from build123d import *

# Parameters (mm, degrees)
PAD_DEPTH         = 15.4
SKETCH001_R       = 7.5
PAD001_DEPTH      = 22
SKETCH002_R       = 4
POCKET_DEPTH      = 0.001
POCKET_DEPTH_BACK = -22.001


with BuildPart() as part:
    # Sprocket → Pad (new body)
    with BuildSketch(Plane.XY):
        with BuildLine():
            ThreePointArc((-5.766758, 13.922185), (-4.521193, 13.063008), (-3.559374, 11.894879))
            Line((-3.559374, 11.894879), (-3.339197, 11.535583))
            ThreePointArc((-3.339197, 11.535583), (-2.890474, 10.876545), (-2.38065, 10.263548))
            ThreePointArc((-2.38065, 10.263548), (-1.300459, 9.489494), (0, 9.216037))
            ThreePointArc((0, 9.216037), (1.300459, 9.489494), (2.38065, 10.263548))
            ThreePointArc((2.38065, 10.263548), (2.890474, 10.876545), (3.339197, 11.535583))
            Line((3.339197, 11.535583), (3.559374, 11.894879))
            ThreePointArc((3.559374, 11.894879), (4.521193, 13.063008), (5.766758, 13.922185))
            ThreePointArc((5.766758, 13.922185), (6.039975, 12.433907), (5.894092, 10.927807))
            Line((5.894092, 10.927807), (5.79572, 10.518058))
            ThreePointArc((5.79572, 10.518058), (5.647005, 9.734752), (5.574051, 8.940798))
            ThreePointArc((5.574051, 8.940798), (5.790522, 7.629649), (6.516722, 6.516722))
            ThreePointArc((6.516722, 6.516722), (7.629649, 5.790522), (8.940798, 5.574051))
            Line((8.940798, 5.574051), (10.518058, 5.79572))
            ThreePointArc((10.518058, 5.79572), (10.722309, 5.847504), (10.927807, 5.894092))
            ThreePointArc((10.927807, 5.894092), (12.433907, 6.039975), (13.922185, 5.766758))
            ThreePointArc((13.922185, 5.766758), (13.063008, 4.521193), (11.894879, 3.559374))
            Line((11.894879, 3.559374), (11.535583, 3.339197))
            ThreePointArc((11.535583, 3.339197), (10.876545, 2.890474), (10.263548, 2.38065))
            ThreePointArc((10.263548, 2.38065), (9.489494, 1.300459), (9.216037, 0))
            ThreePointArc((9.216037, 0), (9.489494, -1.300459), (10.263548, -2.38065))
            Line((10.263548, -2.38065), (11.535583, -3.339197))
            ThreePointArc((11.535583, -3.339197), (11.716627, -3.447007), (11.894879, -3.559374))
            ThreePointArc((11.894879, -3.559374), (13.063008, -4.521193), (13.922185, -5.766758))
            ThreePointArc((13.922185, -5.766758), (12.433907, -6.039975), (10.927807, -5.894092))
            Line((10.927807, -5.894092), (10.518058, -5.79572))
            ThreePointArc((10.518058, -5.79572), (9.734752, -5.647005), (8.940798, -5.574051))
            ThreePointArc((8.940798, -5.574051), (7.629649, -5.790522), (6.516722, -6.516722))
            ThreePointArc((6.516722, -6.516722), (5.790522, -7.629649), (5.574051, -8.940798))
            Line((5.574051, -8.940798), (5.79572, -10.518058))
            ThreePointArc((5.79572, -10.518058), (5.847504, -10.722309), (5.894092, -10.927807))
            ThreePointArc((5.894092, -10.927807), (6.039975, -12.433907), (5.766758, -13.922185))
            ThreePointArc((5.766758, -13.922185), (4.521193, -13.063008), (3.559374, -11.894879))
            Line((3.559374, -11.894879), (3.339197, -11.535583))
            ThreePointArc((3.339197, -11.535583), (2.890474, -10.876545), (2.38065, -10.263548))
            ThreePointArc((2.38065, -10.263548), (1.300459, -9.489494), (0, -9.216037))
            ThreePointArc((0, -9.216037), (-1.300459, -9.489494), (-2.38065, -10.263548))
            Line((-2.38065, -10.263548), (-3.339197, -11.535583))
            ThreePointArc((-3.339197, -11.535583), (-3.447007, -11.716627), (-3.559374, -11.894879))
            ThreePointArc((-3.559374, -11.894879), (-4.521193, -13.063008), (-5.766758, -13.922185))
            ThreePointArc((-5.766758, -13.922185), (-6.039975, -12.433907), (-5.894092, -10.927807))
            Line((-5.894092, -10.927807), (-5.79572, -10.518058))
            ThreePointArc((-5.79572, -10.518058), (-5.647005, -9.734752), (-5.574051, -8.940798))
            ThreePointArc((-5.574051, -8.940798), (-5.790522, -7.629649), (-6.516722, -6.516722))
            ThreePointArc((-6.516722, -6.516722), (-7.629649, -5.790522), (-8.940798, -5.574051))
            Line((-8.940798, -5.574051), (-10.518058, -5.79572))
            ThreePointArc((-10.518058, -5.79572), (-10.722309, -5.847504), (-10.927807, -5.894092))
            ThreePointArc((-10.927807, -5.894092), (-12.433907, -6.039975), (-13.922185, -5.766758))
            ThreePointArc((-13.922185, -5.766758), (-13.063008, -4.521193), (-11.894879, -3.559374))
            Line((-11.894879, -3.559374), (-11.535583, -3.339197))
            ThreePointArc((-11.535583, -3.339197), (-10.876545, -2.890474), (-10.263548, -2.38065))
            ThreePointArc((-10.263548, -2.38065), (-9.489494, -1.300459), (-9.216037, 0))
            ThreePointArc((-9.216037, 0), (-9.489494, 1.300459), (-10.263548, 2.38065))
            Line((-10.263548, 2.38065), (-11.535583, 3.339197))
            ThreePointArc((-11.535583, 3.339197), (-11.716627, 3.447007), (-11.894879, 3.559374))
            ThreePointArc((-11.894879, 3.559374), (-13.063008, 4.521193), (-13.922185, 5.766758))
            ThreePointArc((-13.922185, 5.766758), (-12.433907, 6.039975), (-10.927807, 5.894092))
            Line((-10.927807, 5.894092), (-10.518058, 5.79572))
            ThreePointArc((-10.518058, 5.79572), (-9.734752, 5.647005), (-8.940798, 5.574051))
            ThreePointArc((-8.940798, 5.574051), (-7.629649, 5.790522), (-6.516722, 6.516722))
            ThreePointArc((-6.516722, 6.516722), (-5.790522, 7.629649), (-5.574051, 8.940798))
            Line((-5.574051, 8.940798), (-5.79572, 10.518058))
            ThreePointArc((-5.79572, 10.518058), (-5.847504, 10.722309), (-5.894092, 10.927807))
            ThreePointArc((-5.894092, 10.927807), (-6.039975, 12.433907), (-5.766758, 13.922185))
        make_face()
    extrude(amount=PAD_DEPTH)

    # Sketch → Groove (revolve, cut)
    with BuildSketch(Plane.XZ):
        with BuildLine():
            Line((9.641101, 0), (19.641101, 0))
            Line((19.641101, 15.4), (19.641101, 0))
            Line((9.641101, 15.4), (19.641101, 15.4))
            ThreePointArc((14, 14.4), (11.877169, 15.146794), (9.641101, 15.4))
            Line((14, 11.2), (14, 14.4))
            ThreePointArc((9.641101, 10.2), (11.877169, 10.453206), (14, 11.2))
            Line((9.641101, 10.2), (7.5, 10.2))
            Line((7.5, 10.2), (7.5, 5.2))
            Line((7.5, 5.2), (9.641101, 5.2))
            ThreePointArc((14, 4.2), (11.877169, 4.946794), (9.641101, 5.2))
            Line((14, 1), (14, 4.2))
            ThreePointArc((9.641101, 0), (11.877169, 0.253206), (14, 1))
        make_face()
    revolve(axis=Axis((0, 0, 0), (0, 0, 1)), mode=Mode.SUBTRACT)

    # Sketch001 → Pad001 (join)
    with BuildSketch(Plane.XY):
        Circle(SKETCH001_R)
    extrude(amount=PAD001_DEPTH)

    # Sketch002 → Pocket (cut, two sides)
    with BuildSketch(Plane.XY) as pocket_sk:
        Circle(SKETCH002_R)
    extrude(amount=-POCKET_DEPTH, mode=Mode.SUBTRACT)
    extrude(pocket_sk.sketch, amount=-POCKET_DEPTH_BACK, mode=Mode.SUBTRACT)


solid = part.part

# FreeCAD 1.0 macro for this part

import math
import FreeCAD as App
import Part
import Sketcher
Q = App.Units.Quantity

doc = App.newDocument("Part")
body = doc.addObject("PartDesign::Body", "Body")

sketch1 = body.newObject("Sketcher::SketchObject", "Sketch")
sketch1.AttachmentSupport = (doc.getObject("XY_Plane"), [""])
sketch1.MapMode = "FlatFace"
sketch1.addGeometry([
    Part.ArcOfCircle(Part.Circle(App.Vector(-8.213287, 9.042958, 0), App.Vector(0, 0, 1), 5.458237), math.radians(31.499993), math.radians(63.37002)),
    Part.ArcOfCircle(Part.Circle(App.Vector(-0.586656, 12.202008, 0), App.Vector(0, 0, 1), 5.458248), math.radians(161.630018), math.radians(193.499983)),
    Part.ArcOfCircle(Part.Circle(App.Vector(2.232006, 12.662027, 0), App.Vector(0, 0, 1), 8.309091), math.radians(-167.953026), math.radians(-165.046983)),
    Part.LineSegment(App.Vector(-5.79572, 10.518058, 0), App.Vector(-5.574051, 8.940798, 0)),
    Part.ArcOfCircle(Part.Circle(App.Vector(-8.79995, 8.79995, 0), App.Vector(0, 0, 1), 3.228972), math.radians(-45.000007), math.radians(2.500031)),
    Part.ArcOfCircle(Part.Circle(App.Vector(-8.79995, 8.79995, 0), App.Vector(0, 0, 1), 3.228972), math.radians(-92.500031), math.radians(-44.999993)),
    Part.ArcOfCircle(Part.Circle(App.Vector(-8.578365, 13.875139, 0), App.Vector(0, 0, 1), 8.308996), math.radians(-103.499973), math.radians(-92.499996)),
    Part.LineSegment(App.Vector(-10.518058, 5.79572, 0), App.Vector(-10.927807, 5.894092, 0)),
    Part.ArcOfCircle(Part.Circle(App.Vector(-12.202008, 0.586656, 0), App.Vector(0, 0, 1), 5.458248), math.radians(76.500017), math.radians(108.369982)),
    Part.ArcOfCircle(Part.Circle(App.Vector(-9.042958, 8.213287, 0), App.Vector(0, 0, 1), 5.458237), math.radians(-153.37002), math.radians(-121.499993)),
    Part.ArcOfCircle(Part.Circle(App.Vector(-7.375746, 10.530677, 0), App.Vector(0, 0, 1), 8.307925), math.radians(-122.953241), math.radians(-120.046788)),
    Part.LineSegment(App.Vector(-11.535583, 3.339197, 0), App.Vector(-10.263548, 2.38065, 0)),
    Part.ArcOfCircle(Part.Circle(App.Vector(-12.445011, 0.000001, 0), App.Vector(0, 0, 1), 3.228974), math.radians(-0.000009), math.radians(47.500006)),
    Part.ArcOfCircle(Part.Circle(App.Vector(-12.445011, -0.000001, 0), App.Vector(0, 0, 1), 3.228974), math.radians(-47.500006), math.radians(0.000009)),
    Part.ArcOfCircle(Part.Circle(App.Vector(-15.877022, 3.745386, 0), App.Vector(0, 0, 1), 8.308995), math.radians(-58.499991), math.radians(-47.500016)),
    Part.LineSegment(App.Vector(-11.535583, -3.339197, 0), App.Vector(-11.894879, -3.559374, 0)),
    Part.ArcOfCircle(Part.Circle(App.Vector(-9.042958, -8.213287, 0), App.Vector(0, 0, 1), 5.458237), math.radians(121.499993), math.radians(153.37002)),
    Part.ArcOfCircle(Part.Circle(App.Vector(-12.202008, -0.586656, 0), App.Vector(0, 0, 1), 5.458248), math.radians(-108.369982), math.radians(-76.500017)),
    Part.ArcOfCircle(Part.Circle(App.Vector(-12.662027, 2.232006, 0), App.Vector(0, 0, 1), 8.309091), math.radians(-77.953026), math.radians(-75.046983)),
    Part.LineSegment(App.Vector(-10.518058, -5.79572, 0), App.Vector(-8.940798, -5.574051, 0)),
    Part.ArcOfCircle(Part.Circle(App.Vector(-8.79995, -8.79995, 0), App.Vector(0, 0, 1), 3.228972), math.radians(44.999993), math.radians(92.500031)),
    Part.ArcOfCircle(Part.Circle(App.Vector(-8.79995, -8.79995, 0), App.Vector(0, 0, 1), 3.228972), math.radians(-2.500031), math.radians(45.000007)),
    Part.ArcOfCircle(Part.Circle(App.Vector(-13.875139, -8.578365, 0), App.Vector(0, 0, 1), 8.308996), math.radians(-13.499973), math.radians(-2.499996)),
    Part.LineSegment(App.Vector(-5.79572, -10.518058, 0), App.Vector(-5.894092, -10.927807, 0)),
    Part.ArcOfCircle(Part.Circle(App.Vector(-0.586656, -12.202008, 0), App.Vector(0, 0, 1), 5.458248), math.radians(166.500017), math.radians(198.369982)),
    Part.ArcOfCircle(Part.Circle(App.Vector(-8.213287, -9.042958, 0), App.Vector(0, 0, 1), 5.458237), math.radians(-63.37002), math.radians(-31.499993)),
    Part.ArcOfCircle(Part.Circle(App.Vector(-10.530677, -7.375746, 0), App.Vector(0, 0, 1), 8.307925), math.radians(-32.953241), math.radians(-30.046788)),
    Part.LineSegment(App.Vector(-3.339197, -11.535583, 0), App.Vector(-2.38065, -10.263548, 0)),
    Part.ArcOfCircle(Part.Circle(App.Vector(-0.000001, -12.445011, 0), App.Vector(0, 0, 1), 3.228974), math.radians(89.999991), math.radians(137.500006)),
    Part.ArcOfCircle(Part.Circle(App.Vector(0.000001, -12.445011, 0), App.Vector(0, 0, 1), 3.228974), math.radians(42.499994), math.radians(90.000009)),
    Part.ArcOfCircle(Part.Circle(App.Vector(-3.745386, -15.877022, 0), App.Vector(0, 0, 1), 8.308995), math.radians(31.500009), math.radians(42.499984)),
    Part.LineSegment(App.Vector(3.339197, -11.535583, 0), App.Vector(3.559374, -11.894879, 0)),
    Part.ArcOfCircle(Part.Circle(App.Vector(8.213287, -9.042958, 0), App.Vector(0, 0, 1), 5.458237), math.radians(-148.500007), math.radians(-116.62998)),
    Part.ArcOfCircle(Part.Circle(App.Vector(0.586656, -12.202008, 0), App.Vector(0, 0, 1), 5.458248), math.radians(-18.369982), math.radians(13.499983)),
    Part.ArcOfCircle(Part.Circle(App.Vector(-2.232006, -12.662027, 0), App.Vector(0, 0, 1), 8.309091), math.radians(12.046974), math.radians(14.953017)),
    Part.LineSegment(App.Vector(5.79572, -10.518058, 0), App.Vector(5.574051, -8.940798, 0)),
    Part.ArcOfCircle(Part.Circle(App.Vector(8.79995, -8.79995, 0), App.Vector(0, 0, 1), 3.228972), math.radians(134.999993), math.radians(182.500031)),
    Part.ArcOfCircle(Part.Circle(App.Vector(8.79995, -8.79995, 0), App.Vector(0, 0, 1), 3.228972), math.radians(87.499969), math.radians(135.000007)),
    Part.ArcOfCircle(Part.Circle(App.Vector(8.578365, -13.875139, 0), App.Vector(0, 0, 1), 8.308996), math.radians(76.500027), math.radians(87.500004)),
    Part.LineSegment(App.Vector(10.518058, -5.79572, 0), App.Vector(10.927807, -5.894092, 0)),
    Part.ArcOfCircle(Part.Circle(App.Vector(12.202008, -0.586656, 0), App.Vector(0, 0, 1), 5.458248), math.radians(-103.499983), math.radians(-71.630018)),
    Part.ArcOfCircle(Part.Circle(App.Vector(9.042958, -8.213287, 0), App.Vector(0, 0, 1), 5.458237), math.radians(26.62998), math.radians(58.500007)),
    Part.ArcOfCircle(Part.Circle(App.Vector(7.375746, -10.530677, 0), App.Vector(0, 0, 1), 8.307925), math.radians(57.046759), math.radians(59.953212)),
    Part.LineSegment(App.Vector(11.535583, -3.339197, 0), App.Vector(10.263548, -2.38065, 0)),
    Part.ArcOfCircle(Part.Circle(App.Vector(12.445011, -0.000001, 0), App.Vector(0, 0, 1), 3.228974), math.radians(179.999991), math.radians(227.500006)),
    Part.ArcOfCircle(Part.Circle(App.Vector(12.445011, 0.000001, 0), App.Vector(0, 0, 1), 3.228974), math.radians(132.499994), math.radians(180.000009)),
    Part.ArcOfCircle(Part.Circle(App.Vector(15.877022, -3.745386, 0), App.Vector(0, 0, 1), 8.308995), math.radians(121.500009), math.radians(132.499984)),
    Part.LineSegment(App.Vector(11.535583, 3.339197, 0), App.Vector(11.894879, 3.559374, 0)),
    Part.ArcOfCircle(Part.Circle(App.Vector(9.042958, 8.213287, 0), App.Vector(0, 0, 1), 5.458237), math.radians(-58.500007), math.radians(-26.62998)),
    Part.ArcOfCircle(Part.Circle(App.Vector(12.202008, 0.586656, 0), App.Vector(0, 0, 1), 5.458248), math.radians(71.630018), math.radians(103.499983)),
    Part.ArcOfCircle(Part.Circle(App.Vector(12.662027, -2.232006, 0), App.Vector(0, 0, 1), 8.309091), math.radians(102.046974), math.radians(104.953017)),
    Part.LineSegment(App.Vector(10.518058, 5.79572, 0), App.Vector(8.940798, 5.574051, 0)),
    Part.ArcOfCircle(Part.Circle(App.Vector(8.79995, 8.79995, 0), App.Vector(0, 0, 1), 3.228972), math.radians(-135.000007), math.radians(-87.499969)),
    Part.ArcOfCircle(Part.Circle(App.Vector(8.79995, 8.79995, 0), App.Vector(0, 0, 1), 3.228972), math.radians(177.499969), math.radians(225.000007)),
    Part.ArcOfCircle(Part.Circle(App.Vector(13.875139, 8.578365, 0), App.Vector(0, 0, 1), 8.308996), math.radians(166.500027), math.radians(177.500004)),
    Part.LineSegment(App.Vector(5.79572, 10.518058, 0), App.Vector(5.894092, 10.927807, 0)),
    Part.ArcOfCircle(Part.Circle(App.Vector(0.586656, 12.202008, 0), App.Vector(0, 0, 1), 5.458248), math.radians(-13.499983), math.radians(18.369982)),
    Part.ArcOfCircle(Part.Circle(App.Vector(8.213287, 9.042958, 0), App.Vector(0, 0, 1), 5.458237), math.radians(116.62998), math.radians(148.500007)),
    Part.LineSegment(App.Vector(3.559374, 11.894879, 0), App.Vector(3.339197, 11.535583, 0)),
    Part.ArcOfCircle(Part.Circle(App.Vector(-3.745386, 15.877022, 0), App.Vector(0, 0, 1), 8.308995), math.radians(-42.499984), math.radians(-31.500009)),
    Part.ArcOfCircle(Part.Circle(App.Vector(0.000001, 12.445011, 0), App.Vector(0, 0, 1), 3.228974), math.radians(-90.000009), math.radians(-42.499994)),
    Part.ArcOfCircle(Part.Circle(App.Vector(-0.000001, 12.445011, 0), App.Vector(0, 0, 1), 3.228974), math.radians(-137.500006), math.radians(-89.999991)),
    Part.ArcOfCircle(Part.Circle(App.Vector(3.745386, 15.877022, 0), App.Vector(0, 0, 1), 8.308995), math.radians(-148.499991), math.radians(-137.500016)),
    Part.LineSegment(App.Vector(-3.339197, 11.535583, 0), App.Vector(-3.559374, 11.894879, 0)),
], False)
sketch1.addConstraint([
    Sketcher.Constraint("Coincident", 0, 2, 1, 1),
    Sketcher.Constraint("Coincident", 1, 2, 2, 1),
    Sketcher.Constraint("Coincident", 2, 2, 3, 1),
    Sketcher.Constraint("Coincident", 3, 2, 4, 2),
    Sketcher.Constraint("Tangent", 4, 1, 5, 2),
    Sketcher.Constraint("Tangent", 5, 1, 6, 2),
    Sketcher.Constraint("Tangent", 6, 1, 7, 1),
    Sketcher.Constraint("Tangent", 7, 2, 8, 1),
    Sketcher.Constraint("Coincident", 8, 2, 9, 1),
    Sketcher.Constraint("Coincident", 9, 2, 10, 1),
    Sketcher.Constraint("Coincident", 10, 2, 11, 1),
    Sketcher.Constraint("Coincident", 11, 2, 12, 2),
    Sketcher.Constraint("Tangent", 12, 1, 13, 2),
    Sketcher.Constraint("Tangent", 13, 1, 14, 2),
    Sketcher.Constraint("Tangent", 14, 1, 15, 1),
    Sketcher.Constraint("Tangent", 15, 2, 16, 1),
    Sketcher.Constraint("Coincident", 16, 2, 17, 1),
    Sketcher.Constraint("Coincident", 17, 2, 18, 1),
    Sketcher.Constraint("Coincident", 18, 2, 19, 1),
    Sketcher.Constraint("Coincident", 19, 2, 20, 2),
    Sketcher.Constraint("Tangent", 20, 1, 21, 2),
    Sketcher.Constraint("Tangent", 21, 1, 22, 2),
    Sketcher.Constraint("Tangent", 22, 1, 23, 1),
    Sketcher.Constraint("Tangent", 23, 2, 24, 1),
    Sketcher.Constraint("Coincident", 24, 2, 25, 1),
    Sketcher.Constraint("Coincident", 25, 2, 26, 1),
    Sketcher.Constraint("Coincident", 26, 2, 27, 1),
    Sketcher.Constraint("Coincident", 27, 2, 28, 2),
    Sketcher.Constraint("Tangent", 28, 1, 29, 2),
    Sketcher.Constraint("Tangent", 29, 1, 30, 2),
    Sketcher.Constraint("Tangent", 30, 1, 31, 1),
    Sketcher.Constraint("Tangent", 31, 2, 32, 1),
    Sketcher.Constraint("Coincident", 32, 2, 33, 1),
    Sketcher.Constraint("Coincident", 33, 2, 34, 1),
    Sketcher.Constraint("Coincident", 34, 2, 35, 1),
    Sketcher.Constraint("Coincident", 35, 2, 36, 2),
    Sketcher.Constraint("Tangent", 36, 1, 37, 2),
    Sketcher.Constraint("Tangent", 37, 1, 38, 2),
    Sketcher.Constraint("Tangent", 38, 1, 39, 1),
    Sketcher.Constraint("Tangent", 39, 2, 40, 1),
    Sketcher.Constraint("Coincident", 40, 2, 41, 1),
    Sketcher.Constraint("Coincident", 41, 2, 42, 1),
    Sketcher.Constraint("Coincident", 42, 2, 43, 1),
    Sketcher.Constraint("Coincident", 43, 2, 44, 2),
    Sketcher.Constraint("Tangent", 44, 1, 45, 2),
    Sketcher.Constraint("Tangent", 45, 1, 46, 2),
    Sketcher.Constraint("Tangent", 46, 1, 47, 1),
    Sketcher.Constraint("Tangent", 47, 2, 48, 1),
    Sketcher.Constraint("Coincident", 48, 2, 49, 1),
    Sketcher.Constraint("Coincident", 49, 2, 50, 1),
    Sketcher.Constraint("Coincident", 50, 2, 51, 1),
    Sketcher.Constraint("Coincident", 51, 2, 52, 2),
    Sketcher.Constraint("Tangent", 52, 1, 53, 2),
    Sketcher.Constraint("Tangent", 53, 1, 54, 2),
    Sketcher.Constraint("Tangent", 54, 1, 55, 1),
    Sketcher.Constraint("Tangent", 55, 2, 56, 1),
    Sketcher.Constraint("Coincident", 56, 2, 57, 1),
    Sketcher.Constraint("Tangent", 57, 2, 58, 1),
    Sketcher.Constraint("Tangent", 58, 2, 59, 2),
    Sketcher.Constraint("Tangent", 59, 1, 60, 2),
    Sketcher.Constraint("Tangent", 60, 1, 61, 2),
    Sketcher.Constraint("Tangent", 61, 1, 62, 2),
    Sketcher.Constraint("Tangent", 62, 1, 63, 1),
    Sketcher.Constraint("Tangent", 63, 2, 0, 1),
    Sketcher.Constraint("Equal", 4, 5),
    Sketcher.Constraint("Equal", 1, 8),
    Sketcher.Constraint("Equal", 0, 9),
    Sketcher.Constraint("Equal", 5, 12),
    Sketcher.Constraint("Equal", 12, 13),
    Sketcher.Constraint("Equal", 6, 14),
    Sketcher.Constraint("Equal", 9, 16),
    Sketcher.Constraint("Equal", 8, 17),
    Sketcher.Constraint("Equal", 2, 18),
    Sketcher.Constraint("Equal", 13, 20),
    Sketcher.Constraint("Equal", 20, 21),
    Sketcher.Constraint("Equal", 14, 22),
    Sketcher.Constraint("Equal", 17, 24),
    Sketcher.Constraint("Equal", 16, 25),
    Sketcher.Constraint("Equal", 10, 26),
    Sketcher.Constraint("Equal", 21, 28),
    Sketcher.Constraint("Equal", 28, 29),
    Sketcher.Constraint("Equal", 22, 30),
    Sketcher.Constraint("Equal", 25, 32),
    Sketcher.Constraint("Equal", 24, 33),
    Sketcher.Constraint("Equal", 18, 34),
    Sketcher.Constraint("Equal", 29, 36),
    Sketcher.Constraint("Equal", 36, 37),
    Sketcher.Constraint("Equal", 30, 38),
    Sketcher.Constraint("Equal", 33, 40),
    Sketcher.Constraint("Equal", 32, 41),
    Sketcher.Constraint("Equal", 26, 42),
    Sketcher.Constraint("Equal", 37, 44),
    Sketcher.Constraint("Equal", 44, 45),
    Sketcher.Constraint("Equal", 38, 46),
    Sketcher.Constraint("Equal", 41, 48),
    Sketcher.Constraint("Equal", 40, 49),
    Sketcher.Constraint("Equal", 34, 50),
    Sketcher.Constraint("Equal", 45, 52),
    Sketcher.Constraint("Equal", 52, 53),
    Sketcher.Constraint("Equal", 46, 54),
    Sketcher.Constraint("Equal", 49, 56),
    Sketcher.Constraint("Equal", 48, 57),
    Sketcher.Constraint("Equal", 54, 59),
    Sketcher.Constraint("Equal", 53, 60),
    Sketcher.Constraint("Equal", 60, 61),
    Sketcher.Constraint("Equal", 59, 62),
    Sketcher.Constraint("Symmetric", 0, 3, 32, 3, -1, 1),
    Sketcher.Constraint("Symmetric", 1, 3, 33, 3, -1, 1),
    Sketcher.Constraint("Symmetric", 2, 3, 34, 3, -1, 1),
    Sketcher.Constraint("Symmetric", 4, 3, 36, 3, -1, 1),
    Sketcher.Constraint("Symmetric", 8, 3, 40, 3, -1, 1),
    Sketcher.Constraint("Symmetric", 9, 3, 41, 3, -1, 1),
    Sketcher.Constraint("Symmetric", 10, 3, 42, 3, -1, 1),
    Sketcher.Constraint("Symmetric", 12, 3, 44, 3, -1, 1),
    Sketcher.Constraint("Symmetric", 16, 3, 48, 3, -1, 1),
    Sketcher.Constraint("Symmetric", 17, 3, 49, 3, -1, 1),
    Sketcher.Constraint("Symmetric", 18, 3, 50, 3, -1, 1),
    Sketcher.Constraint("Symmetric", 20, 3, 52, 3, -1, 1),
    Sketcher.Constraint("Symmetric", 24, 3, 56, 3, -1, 1),
    Sketcher.Constraint("Symmetric", 25, 3, 57, 3, -1, 1),
    Sketcher.Constraint("Symmetric", 28, 3, 60, 3, -1, 1),
    Sketcher.Constraint("Symmetric", 26, 2, 58, 2, -1, 1),
    Sketcher.Constraint("Symmetric", 25, 3, 32, 3, -2),
    Sketcher.Constraint("Symmetric", 24, 3, 33, 3, -2),
    Sketcher.Constraint("Symmetric", 20, 3, 36, 3, -2),
    Sketcher.Constraint("Symmetric", 17, 3, 40, 3, -2),
    Sketcher.Constraint("Symmetric", 16, 3, 41, 3, -2),
    Sketcher.Constraint("Symmetric", 59, 3, 62, 3, -2),
    Sketcher.Constraint("Symmetric", 22, 1, 34, 2, -2),
    Sketcher.Constraint("Symmetric", 18, 2, 38, 1, -2),
    Sketcher.Constraint("Symmetric", 14, 1, 42, 2, -2),
    Sketcher.Constraint("Symmetric", 13, 1, 43, 2, -2),
    Sketcher.Constraint("Symmetric", 10, 2, 46, 1, -2),
    Sketcher.Constraint("Symmetric", 6, 1, 50, 2, -2),
    Sketcher.Constraint("Symmetric", 2, 2, 54, 1, -2),
    Sketcher.Constraint("PointOnObject", 12, 1, -1),
    Sketcher.Constraint("PointOnObject", 28, 1, -2),
    Sketcher.Constraint("PointOnObject", 44, 1, -1),
    Sketcher.Constraint("PointOnObject", 60, 1, -2),
    Sketcher.Constraint("Perpendicular", 3, 19),
    Sketcher.Constraint("Perpendicular", 7, 23),
    Sketcher.Constraint("Perpendicular", 11, 27),
    Sketcher.Constraint("Perpendicular", 15, 31),
    Sketcher.Constraint("Perpendicular", 19, 35),
    Sketcher.Constraint("Perpendicular", 27, 43),
    Sketcher.Constraint("Perpendicular", 35, 51),
    Sketcher.Constraint("Perpendicular", 47, 63),
    Sketcher.Constraint("Horizontal", 27, 2, 29, 1),
    Sketcher.Constraint("Horizontal", 25, 2, 31, 2),
    Sketcher.Constraint("Horizontal", 23, 2, 33, 2),
    Sketcher.Constraint("Horizontal", 21, 1, 35, 2),
    Sketcher.Constraint("Horizontal", 20, 1, 36, 1),
    Sketcher.Constraint("Horizontal", 19, 2, 37, 1),
    Sketcher.Constraint("Horizontal", 17, 2, 39, 2),
    Sketcher.Constraint("Horizontal", 15, 2, 41, 2),
    Sketcher.Constraint("Horizontal", 4, 1, 52, 1),
    Sketcher.Constraint("Vertical", 4, 1, 20, 1),
    Sketcher.Constraint("Equal", 3, 11),
    Sketcher.Constraint("Equal", 7, 15),
    Sketcher.Constraint("Equal", 15, 23),
    Sketcher.Constraint("Equal", 23, 31),
    Sketcher.Constraint("Angle", 3, Q("-82.000016 deg")),
    Sketcher.Constraint("Angle", 11, Q("-36.999996 deg")),
    Sketcher.Constraint("Angle", 7, Q("166.500004 deg")),
    Sketcher.Constraint("Radius", 2, Q("8.309091 mm")),
    Sketcher.Constraint("Radius", 0, Q("5.458237 mm")),
    Sketcher.Constraint("Radius", 1, Q("5.458248 mm")),
    Sketcher.Constraint("Radius", 4, Q("3.228972 mm")),
    Sketcher.Constraint("Radius", 6, Q("8.308996 mm")),
    Sketcher.Constraint("Radius", 10, Q("8.307925 mm")),
    Sketcher.Constraint("DistanceY", -1, 1, 0, 3, Q("9.042958 mm")),
    Sketcher.Constraint("DistanceY", -1, 1, 1, 3, Q("12.202008 mm")),
    Sketcher.Constraint("DistanceX", 4, 3, -1, 1, Q("8.79995 mm")),
    Sketcher.Constraint("DistanceY", -1, 1, 4, 3, Q("8.79995 mm")),
    Sketcher.Constraint("DistanceX", 9, 3, -1, 1, Q("9.042958 mm")),
    Sketcher.Constraint("DistanceX", 4, 1, -1, 1, Q("6.516722 mm")),
])
pad1 = body.newObject("PartDesign::Pad", "Pad")
pad1.Profile = sketch1
pad1.Length = 15.4

sketch2 = body.newObject("Sketcher::SketchObject", "Sketch001")
sketch2.AttachmentSupport = (doc.getObject("XZ_Plane"), [""])
sketch2.MapMode = "FlatFace"
sketch2.addGeometry([
    Part.LineSegment(App.Vector(9.641101, 0, 0), App.Vector(19.641101, 0, 0)),
    Part.LineSegment(App.Vector(19.641101, 0, 0), App.Vector(19.641101, 15.4, 0)),
    Part.LineSegment(App.Vector(19.641101, 15.4, 0), App.Vector(9.641101, 15.4, 0)),
    Part.ArcOfCircle(Part.Circle(App.Vector(9.641098, 5.399987, 0), App.Vector(0, 0, 1), 10.000013), math.radians(64.158085), math.radians(89.999983)),
    Part.LineSegment(App.Vector(14, 14.4, 0), App.Vector(14, 11.2, 0)),
    Part.ArcOfCircle(Part.Circle(App.Vector(9.641098, 20.200013, 0), App.Vector(0, 0, 1), 10.000013), math.radians(-89.999983), math.radians(-64.158085)),
    Part.LineSegment(App.Vector(9.641101, 10.2, 0), App.Vector(7.5, 10.2, 0)),
    Part.LineSegment(App.Vector(7.5, 10.2, 0), App.Vector(7.5, 5.2, 0)),
    Part.LineSegment(App.Vector(7.5, 5.2, 0), App.Vector(9.641101, 5.2, 0)),
    Part.ArcOfCircle(Part.Circle(App.Vector(9.641098, -4.800013, 0), App.Vector(0, 0, 1), 10.000013), math.radians(64.158085), math.radians(89.999983)),
    Part.LineSegment(App.Vector(14, 4.2, 0), App.Vector(14, 1, 0)),
    Part.ArcOfCircle(Part.Circle(App.Vector(9.641098, 10.000013, 0), App.Vector(0, 0, 1), 10.000013), math.radians(-89.999983), math.radians(-64.158085)),
], False)
sketch2.addConstraint([
    Sketcher.Constraint("Coincident", 0, 2, 1, 1),
    Sketcher.Constraint("Coincident", 1, 2, 2, 1),
    Sketcher.Constraint("Tangent", 2, 2, 3, 2),
    Sketcher.Constraint("Coincident", 3, 1, 4, 1),
    Sketcher.Constraint("Coincident", 4, 2, 5, 2),
    Sketcher.Constraint("Tangent", 5, 1, 6, 1),
    Sketcher.Constraint("Coincident", 6, 2, 7, 1),
    Sketcher.Constraint("Coincident", 7, 2, 8, 1),
    Sketcher.Constraint("Tangent", 8, 2, 9, 2),
    Sketcher.Constraint("Coincident", 9, 1, 10, 1),
    Sketcher.Constraint("Coincident", 10, 2, 11, 2),
    Sketcher.Constraint("Tangent", 11, 1, 0, 1),
    Sketcher.Constraint("Horizontal", 0),
    Sketcher.Constraint("Vertical", 1),
    Sketcher.Constraint("Horizontal", 2),
    Sketcher.Constraint("Vertical", 4),
    Sketcher.Constraint("Horizontal", 6),
    Sketcher.Constraint("Vertical", 7),
    Sketcher.Constraint("Horizontal", 8),
    Sketcher.Constraint("Vertical", 10),
    Sketcher.Constraint("Equal", 3, 5),
    Sketcher.Constraint("Equal", 5, 9),
    Sketcher.Constraint("Equal", 9, 11),
    Sketcher.Constraint("PointOnObject", 0, 2, -1),
    Sketcher.Constraint("Vertical", 3, 3, 5, 3),
    Sketcher.Constraint("Vertical", 5, 3, 9, 3),
    Sketcher.Constraint("Vertical", 9, 3, 11, 3),
    Sketcher.Constraint("Vertical", 4, 2, 9, 1),
    Sketcher.Constraint("Equal", 4, 10),
    Sketcher.Constraint("DistanceX", 0, 1, 0, 2, Q("10 mm")),
    Sketcher.Constraint("DistanceY", 7, 2, 7, 1, Q("5 mm")),
    Sketcher.Constraint("DistanceY", 1, 1, 1, 2, Q("15.4 mm")),
    Sketcher.Constraint("DistanceY", 4, 2, 4, 1, Q("3.2 mm")),
    Sketcher.Constraint("DistanceX", -1, 1, 3, 1, Q("14 mm")),
    Sketcher.Constraint("DistanceX", -1, 1, 6, 2, Q("7.5 mm")),
    Sketcher.Constraint("DistanceX", 6, 2, 6, 1, Q("2.141101 mm")),
])
groove = body.newObject("PartDesign::Groove", "Groove")
groove.Profile = sketch2
groove.ReferenceAxis = (sketch2, ["V_Axis"])
groove.Angle = 360

sketch3 = body.newObject("Sketcher::SketchObject", "Sketch002")
sketch3.AttachmentSupport = (doc.getObject("XY_Plane"), [""])
sketch3.MapMode = "FlatFace"
sketch3.addGeometry(Part.Circle(App.Vector(0, 0, 0), App.Vector(0, 0, 1), 7.5), False)
sketch3.addConstraint([
    Sketcher.Constraint("Coincident", 0, 3, -1, 1),
    Sketcher.Constraint("Diameter", 0, Q("15 mm")),
])
pad2 = body.newObject("PartDesign::Pad", "Pad001")
pad2.Profile = sketch3
pad2.Length = 22

sketch4 = body.newObject("Sketcher::SketchObject", "Sketch003")
sketch4.AttachmentSupport = (doc.getObject("XY_Plane"), [""])
sketch4.MapMode = "FlatFace"
sketch4.addGeometry(Part.Circle(App.Vector(0, 0, 0), App.Vector(0, 0, 1), 4), False)
sketch4.addConstraint([
    Sketcher.Constraint("Coincident", 0, 3, -1, 1),
    Sketcher.Constraint("Diameter", 0, Q("8 mm")),
])
pocket1 = body.newObject("PartDesign::Pocket", "Pocket")
pocket1.Profile = sketch4
pocket1.Type = "ThroughAll"
pocket1.Midplane = True

doc.recompute()
